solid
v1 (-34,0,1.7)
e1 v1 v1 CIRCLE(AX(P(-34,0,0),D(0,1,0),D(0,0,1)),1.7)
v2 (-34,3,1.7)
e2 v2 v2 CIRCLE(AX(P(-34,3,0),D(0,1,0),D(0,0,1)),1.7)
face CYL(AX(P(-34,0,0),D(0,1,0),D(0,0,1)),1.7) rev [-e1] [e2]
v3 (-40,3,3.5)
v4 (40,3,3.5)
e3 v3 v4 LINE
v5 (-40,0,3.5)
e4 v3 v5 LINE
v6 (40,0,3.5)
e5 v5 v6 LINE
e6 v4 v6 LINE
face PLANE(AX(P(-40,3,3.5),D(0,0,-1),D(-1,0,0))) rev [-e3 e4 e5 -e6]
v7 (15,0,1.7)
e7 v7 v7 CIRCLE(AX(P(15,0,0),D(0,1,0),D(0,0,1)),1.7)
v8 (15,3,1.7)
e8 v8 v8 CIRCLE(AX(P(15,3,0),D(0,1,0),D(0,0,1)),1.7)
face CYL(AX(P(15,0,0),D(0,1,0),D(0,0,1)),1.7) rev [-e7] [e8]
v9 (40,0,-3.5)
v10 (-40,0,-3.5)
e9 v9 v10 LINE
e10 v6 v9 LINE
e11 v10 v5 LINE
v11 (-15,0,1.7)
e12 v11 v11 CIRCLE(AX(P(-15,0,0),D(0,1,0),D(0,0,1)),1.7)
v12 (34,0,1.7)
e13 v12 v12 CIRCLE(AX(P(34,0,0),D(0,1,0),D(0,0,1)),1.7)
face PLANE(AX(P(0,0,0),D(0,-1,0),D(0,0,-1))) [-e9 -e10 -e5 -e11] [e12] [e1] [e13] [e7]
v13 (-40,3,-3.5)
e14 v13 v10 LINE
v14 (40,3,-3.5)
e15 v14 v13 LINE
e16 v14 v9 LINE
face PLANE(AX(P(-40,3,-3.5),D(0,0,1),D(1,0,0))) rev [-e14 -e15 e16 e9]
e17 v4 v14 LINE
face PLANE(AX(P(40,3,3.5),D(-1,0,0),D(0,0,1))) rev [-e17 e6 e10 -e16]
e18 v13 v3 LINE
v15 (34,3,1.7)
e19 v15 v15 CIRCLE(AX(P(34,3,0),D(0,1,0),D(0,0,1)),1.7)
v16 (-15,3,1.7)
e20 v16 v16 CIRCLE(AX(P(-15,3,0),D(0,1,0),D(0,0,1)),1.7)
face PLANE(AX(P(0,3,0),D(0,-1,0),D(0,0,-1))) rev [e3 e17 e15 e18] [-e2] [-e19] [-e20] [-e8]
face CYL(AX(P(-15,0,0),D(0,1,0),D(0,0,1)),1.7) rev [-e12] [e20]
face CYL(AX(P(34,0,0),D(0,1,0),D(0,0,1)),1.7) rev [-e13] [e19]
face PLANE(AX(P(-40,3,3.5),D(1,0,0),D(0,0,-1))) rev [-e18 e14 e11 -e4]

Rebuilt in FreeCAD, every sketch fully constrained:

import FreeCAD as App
import Part
import Sketcher

V = App.Vector
Q = App.Units.Quantity

doc = App.newDocument("Part")
body = doc.addObject("PartDesign::Body", "Body")

# Sketch on XZ plane
sketch1 = body.newObject("Sketcher::SketchObject", "Sketch")
sketch1.AttachmentSupport = (doc.getObject("XZ_Plane"), [""])
sketch1.MapMode = "FlatFace"
sketch1.addGeometry([
    Part.LineSegment(V(-40, -3.5, 0), V(-40, 3.5, 0)),
    Part.LineSegment(V(-40, 3.5, 0), V(40, 3.5, 0)),
    Part.LineSegment(V(40, 3.5, 0), V(40, -3.5, 0)),
    Part.LineSegment(V(40, -3.5, 0), V(-40, -3.5, 0)),
], False)
sketch1.addConstraint([
    Sketcher.Constraint("Coincident", 0, 2, 1, 1),
    Sketcher.Constraint("Coincident", 1, 2, 2, 1),
    Sketcher.Constraint("Coincident", 2, 2, 3, 1),
    Sketcher.Constraint("Coincident", 3, 2, 0, 1),
    Sketcher.Constraint("Vertical", 0),
    Sketcher.Constraint("Horizontal", 1),
    Sketcher.Constraint("Vertical", 2),
    Sketcher.Constraint("Horizontal", 3),
    Sketcher.Constraint("Symmetric", 0, 2, 2, 2, -1, 1),
    Sketcher.Constraint("DistanceX", 1, 1, 1, 2, Q("80 mm")),
    Sketcher.Constraint("DistanceY", 0, 1, 0, 2, Q("7 mm")),
])
pad1 = body.newObject("PartDesign::Pad", "Pad")
pad1.Profile = sketch1
pad1.Length = 3
pad1.Reversed = True

# Sketch on XZ plane
sketch2 = body.newObject("Sketcher::SketchObject", "Sketch001")
sketch2.AttachmentSupport = (doc.getObject("XZ_Plane"), [""])
sketch2.MapMode = "FlatFace"
sketch2.AttachmentOffset = App.Placement(V(0, 0, -3), App.Rotation())
sketch2.addGeometry([
    Part.Circle(V(-34, 0, 0), V(0, 0, 1), 1.7),
    Part.Circle(V(-15, 0, 0), V(0, 0, 1), 1.7),
    Part.Circle(V(15, 0, 0), V(0, 0, 1), 1.7),
    Part.Circle(V(34, 0, 0), V(0, 0, 1), 1.7),
], False)
sketch2.addConstraint([
    Sketcher.Constraint("Equal", 0, 1),
    Sketcher.Constraint("Equal", 1, 2),
    Sketcher.Constraint("Equal", 2, 3),
    Sketcher.Constraint("Symmetric", 1, 3, 2, 3, -1, 1),
    Sketcher.Constraint("Symmetric", 0, 3, 3, 3, -1, 1),
    Sketcher.Constraint("PointOnObject", 0, 3, -1),
    Sketcher.Constraint("PointOnObject", 1, 3, -1),
    Sketcher.Constraint("Diameter", 0, Q("3.4 mm")),
    Sketcher.Constraint("DistanceX", 0, 3, -1, 1, Q("34 mm")),
    Sketcher.Constraint("DistanceX", 1, 3, -1, 1, Q("15 mm")),
])
pocket1 = body.newObject("PartDesign::Pocket", "Pocket")
pocket1.Profile = sketch2
pocket1.Type = "ThroughAll"
pocket1.Reversed = True

doc.recompute()
